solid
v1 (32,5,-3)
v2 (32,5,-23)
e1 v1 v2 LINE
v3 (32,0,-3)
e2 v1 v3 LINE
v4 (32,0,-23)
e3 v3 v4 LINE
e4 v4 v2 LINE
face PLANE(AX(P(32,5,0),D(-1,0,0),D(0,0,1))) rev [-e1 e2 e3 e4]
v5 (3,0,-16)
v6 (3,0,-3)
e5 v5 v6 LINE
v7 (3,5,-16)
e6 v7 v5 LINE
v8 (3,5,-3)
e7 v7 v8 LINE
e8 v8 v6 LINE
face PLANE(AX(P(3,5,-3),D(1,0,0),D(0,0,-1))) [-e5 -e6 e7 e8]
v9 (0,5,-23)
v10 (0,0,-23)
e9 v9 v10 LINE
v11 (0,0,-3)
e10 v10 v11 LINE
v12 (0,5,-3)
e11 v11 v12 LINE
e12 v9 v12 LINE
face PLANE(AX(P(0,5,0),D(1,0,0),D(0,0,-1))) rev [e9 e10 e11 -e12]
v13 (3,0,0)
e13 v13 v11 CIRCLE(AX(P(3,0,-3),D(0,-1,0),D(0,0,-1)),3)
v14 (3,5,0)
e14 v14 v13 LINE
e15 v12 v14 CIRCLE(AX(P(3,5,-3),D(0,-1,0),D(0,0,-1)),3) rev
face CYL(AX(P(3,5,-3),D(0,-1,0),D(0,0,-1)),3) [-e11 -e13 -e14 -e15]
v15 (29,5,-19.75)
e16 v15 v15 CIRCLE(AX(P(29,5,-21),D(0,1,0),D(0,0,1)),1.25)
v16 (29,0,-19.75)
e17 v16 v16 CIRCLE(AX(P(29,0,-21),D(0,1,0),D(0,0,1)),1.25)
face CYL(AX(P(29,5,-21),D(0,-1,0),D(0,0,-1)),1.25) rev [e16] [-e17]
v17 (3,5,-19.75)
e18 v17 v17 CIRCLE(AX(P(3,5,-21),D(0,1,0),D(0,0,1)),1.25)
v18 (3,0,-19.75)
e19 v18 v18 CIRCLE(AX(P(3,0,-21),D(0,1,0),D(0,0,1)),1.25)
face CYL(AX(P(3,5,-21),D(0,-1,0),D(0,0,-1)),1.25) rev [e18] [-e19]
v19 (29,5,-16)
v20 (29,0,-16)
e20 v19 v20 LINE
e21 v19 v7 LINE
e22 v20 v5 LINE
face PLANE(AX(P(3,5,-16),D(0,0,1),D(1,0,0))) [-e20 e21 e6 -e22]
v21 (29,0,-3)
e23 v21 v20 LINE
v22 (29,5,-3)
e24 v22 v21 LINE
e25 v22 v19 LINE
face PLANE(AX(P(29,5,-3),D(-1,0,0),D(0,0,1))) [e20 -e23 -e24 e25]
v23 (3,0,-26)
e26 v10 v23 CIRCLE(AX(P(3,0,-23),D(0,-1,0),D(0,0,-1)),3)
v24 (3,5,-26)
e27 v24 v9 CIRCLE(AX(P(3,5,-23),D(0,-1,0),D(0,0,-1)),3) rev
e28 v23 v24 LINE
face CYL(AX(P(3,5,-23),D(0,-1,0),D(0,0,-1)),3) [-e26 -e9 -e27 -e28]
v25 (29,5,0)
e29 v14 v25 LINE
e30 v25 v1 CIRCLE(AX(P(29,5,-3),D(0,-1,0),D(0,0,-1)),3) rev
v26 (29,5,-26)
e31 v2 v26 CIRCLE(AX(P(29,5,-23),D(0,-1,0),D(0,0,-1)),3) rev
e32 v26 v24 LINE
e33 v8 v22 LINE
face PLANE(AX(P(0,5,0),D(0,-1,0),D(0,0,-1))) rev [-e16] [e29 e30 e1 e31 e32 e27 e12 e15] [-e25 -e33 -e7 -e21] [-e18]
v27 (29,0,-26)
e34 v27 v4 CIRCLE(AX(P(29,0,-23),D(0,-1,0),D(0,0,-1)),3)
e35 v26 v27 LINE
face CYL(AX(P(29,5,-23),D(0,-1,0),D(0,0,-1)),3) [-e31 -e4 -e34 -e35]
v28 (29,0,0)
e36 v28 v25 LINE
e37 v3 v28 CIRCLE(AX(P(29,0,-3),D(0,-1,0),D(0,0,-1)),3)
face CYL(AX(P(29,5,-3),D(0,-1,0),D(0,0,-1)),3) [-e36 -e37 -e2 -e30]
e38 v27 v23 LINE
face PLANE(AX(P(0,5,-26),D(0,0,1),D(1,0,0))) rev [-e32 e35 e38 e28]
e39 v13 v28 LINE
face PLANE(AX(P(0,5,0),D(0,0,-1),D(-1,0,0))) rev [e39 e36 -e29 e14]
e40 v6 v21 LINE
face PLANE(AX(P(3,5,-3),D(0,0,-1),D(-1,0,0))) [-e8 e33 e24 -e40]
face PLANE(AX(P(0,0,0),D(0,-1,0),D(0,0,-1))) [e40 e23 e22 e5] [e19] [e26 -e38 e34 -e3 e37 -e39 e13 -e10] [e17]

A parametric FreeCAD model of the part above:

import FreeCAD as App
import Part
import Sketcher

V = App.Vector


def edges_at(feature, points):
    """Names of the edges that pass closest to the given points."""
    edges = feature.Shape.Edges
    near = lambda p: min(range(len(edges)), key=lambda i: edges[i].distToShape(Part.Vertex(*p))[0])
    return sorted({f"Edge{near(p) + 1}" for p in points})

doc = App.newDocument("Part")
params = doc.addObject("Spreadsheet::Sheet", "Params")
for row, (alias, value) in enumerate([
    ("sketch1_diameter", "2.5 mm"),
    ("sketch1_width", "32 mm"),
    ("sketch1_width2", "26 mm"),
    ("sketch1_height", "13 mm"),
    ("pad1_length", "5 mm"),
    ("fillet_radius", "3 mm"),
], start=1):
    params.set(f"A{row}", alias)
    params.set(f"B{row}", "=" + value)
    params.setAlias(f"B{row}", alias)

body = doc.addObject("PartDesign::Body", "Body")

sketch1 = body.newObject("Sketcher::SketchObject", "Sketch")
sketch1.AttachmentSupport = (doc.getObject("XZ_Plane"), [""])
sketch1.MapMode = "FlatFace"
sketch1.addGeometry(Part.LineSegment(V(0, -26, 0), V(0, 0, 0)), False)
sketch1.addGeometry(Part.LineSegment(V(0, 0, 0), V(32, 0, 0)), False)
sketch1.addGeometry(Part.LineSegment(V(32, 0, 0), V(32, -26, 0)), False)
sketch1.addGeometry(Part.LineSegment(V(32, -26, 0), V(0, -26, 0)), False)
sketch1.addGeometry(Part.LineSegment(V(29, -3, 0), V(3, -3, 0)), False)
sketch1.addGeometry(Part.LineSegment(V(3, -3, 0), V(3, -16, 0)), False)
sketch1.addGeometry(Part.LineSegment(V(3, -16, 0), V(29, -16, 0)), False)
sketch1.addGeometry(Part.LineSegment(V(29, -16, 0), V(29, -3, 0)), False)
sketch1.addGeometry(Part.Circle(V(3, -21, 0), V(0, 0, 1), 1.25), False)
sketch1.addGeometry(Part.Circle(V(29, -21, 0), V(0, 0, 1), 1.25), False)
sketch1.addConstraint(Sketcher.Constraint("Coincident", 0, 2, 1, 1))
sketch1.addConstraint(Sketcher.Constraint("Coincident", 1, 2, 2, 1))
sketch1.addConstraint(Sketcher.Constraint("Coincident", 2, 2, 3, 1))
sketch1.addConstraint(Sketcher.Constraint("Coincident", 3, 2, 0, 1))
sketch1.addConstraint(Sketcher.Constraint("Coincident", 4, 2, 5, 1))
sketch1.addConstraint(Sketcher.Constraint("Coincident", 5, 2, 6, 1))
sketch1.addConstraint(Sketcher.Constraint("Coincident", 6, 2, 7, 1))
sketch1.addConstraint(Sketcher.Constraint("Coincident", 7, 2, 4, 1))
sketch1.addConstraint(Sketcher.Constraint("Vertical", 0))
sketch1.addConstraint(Sketcher.Constraint("Horizontal", 1))
sketch1.addConstraint(Sketcher.Constraint("Vertical", 2))
sketch1.addConstraint(Sketcher.Constraint("Horizontal", 3))
sketch1.addConstraint(Sketcher.Constraint("Horizontal", 4))
sketch1.addConstraint(Sketcher.Constraint("Vertical", 5))
sketch1.addConstraint(Sketcher.Constraint("Horizontal", 6))
sketch1.addConstraint(Sketcher.Constraint("Vertical", 7))
sketch1.addConstraint(Sketcher.Constraint("Coincident", 0, 2, -1, 1))
sketch1.addConstraint(Sketcher.Constraint("Equal", 8, 9))
sketch1.addConstraint(Sketcher.Constraint("Horizontal", 8, 3, 9, 3))
sketch1.addConstraint(Sketcher.Constraint("Vertical", 8, 3, 4, 2))
sketch1.addConstraint(Sketcher.Constraint("Vertical", 9, 3, 6, 2))
sketch1.addConstraint(Sketcher.Constraint("Equal", 6, 0))
sketch1.addConstraint(Sketcher.Constraint("Diameter", 8, 2.5))
sketch1.addConstraint(Sketcher.Constraint("DistanceX", 1, 1, 1, 2, 32.0))
sketch1.addConstraint(Sketcher.Constraint("DistanceX", 4, 2, 4, 1, 26.0))
sketch1.addConstraint(Sketcher.Constraint("DistanceY", 5, 2, 5, 1, 13.0))
sketch1.addConstraint(Sketcher.Constraint("DistanceX", -1, 1, 8, 3, 3.0))
sketch1.addConstraint(Sketcher.Constraint("DistanceY", 8, 3, -1, 1, 21.0))
sketch1.addConstraint(Sketcher.Constraint("DistanceY", 4, 2, -1, 1, 3.0))
sketch1.setExpression("Constraints[22]", "Params.sketch1_diameter")
sketch1.setExpression("Constraints[23]", "Params.sketch1_width")
sketch1.setExpression("Constraints[24]", "Params.sketch1_width2")
sketch1.setExpression("Constraints[25]", "Params.sketch1_height")
pad1 = body.newObject("PartDesign::Pad", "Pad")
pad1.Profile = sketch1
pad1.setExpression("Length", "Params.pad1_length")
pad1.Reversed = True
doc.recompute()

fillet = body.newObject("PartDesign::Fillet", "Fillet")
fillet.Base = (pad1, edges_at(pad1, [
    (0, 2.5, -26),
    (32, 2.5, -26),
    (32, 2.5, 0),
    (0, 2.5, 0),
]))
fillet.setExpression("Radius", "Params.fillet_radius")

doc.recompute()
